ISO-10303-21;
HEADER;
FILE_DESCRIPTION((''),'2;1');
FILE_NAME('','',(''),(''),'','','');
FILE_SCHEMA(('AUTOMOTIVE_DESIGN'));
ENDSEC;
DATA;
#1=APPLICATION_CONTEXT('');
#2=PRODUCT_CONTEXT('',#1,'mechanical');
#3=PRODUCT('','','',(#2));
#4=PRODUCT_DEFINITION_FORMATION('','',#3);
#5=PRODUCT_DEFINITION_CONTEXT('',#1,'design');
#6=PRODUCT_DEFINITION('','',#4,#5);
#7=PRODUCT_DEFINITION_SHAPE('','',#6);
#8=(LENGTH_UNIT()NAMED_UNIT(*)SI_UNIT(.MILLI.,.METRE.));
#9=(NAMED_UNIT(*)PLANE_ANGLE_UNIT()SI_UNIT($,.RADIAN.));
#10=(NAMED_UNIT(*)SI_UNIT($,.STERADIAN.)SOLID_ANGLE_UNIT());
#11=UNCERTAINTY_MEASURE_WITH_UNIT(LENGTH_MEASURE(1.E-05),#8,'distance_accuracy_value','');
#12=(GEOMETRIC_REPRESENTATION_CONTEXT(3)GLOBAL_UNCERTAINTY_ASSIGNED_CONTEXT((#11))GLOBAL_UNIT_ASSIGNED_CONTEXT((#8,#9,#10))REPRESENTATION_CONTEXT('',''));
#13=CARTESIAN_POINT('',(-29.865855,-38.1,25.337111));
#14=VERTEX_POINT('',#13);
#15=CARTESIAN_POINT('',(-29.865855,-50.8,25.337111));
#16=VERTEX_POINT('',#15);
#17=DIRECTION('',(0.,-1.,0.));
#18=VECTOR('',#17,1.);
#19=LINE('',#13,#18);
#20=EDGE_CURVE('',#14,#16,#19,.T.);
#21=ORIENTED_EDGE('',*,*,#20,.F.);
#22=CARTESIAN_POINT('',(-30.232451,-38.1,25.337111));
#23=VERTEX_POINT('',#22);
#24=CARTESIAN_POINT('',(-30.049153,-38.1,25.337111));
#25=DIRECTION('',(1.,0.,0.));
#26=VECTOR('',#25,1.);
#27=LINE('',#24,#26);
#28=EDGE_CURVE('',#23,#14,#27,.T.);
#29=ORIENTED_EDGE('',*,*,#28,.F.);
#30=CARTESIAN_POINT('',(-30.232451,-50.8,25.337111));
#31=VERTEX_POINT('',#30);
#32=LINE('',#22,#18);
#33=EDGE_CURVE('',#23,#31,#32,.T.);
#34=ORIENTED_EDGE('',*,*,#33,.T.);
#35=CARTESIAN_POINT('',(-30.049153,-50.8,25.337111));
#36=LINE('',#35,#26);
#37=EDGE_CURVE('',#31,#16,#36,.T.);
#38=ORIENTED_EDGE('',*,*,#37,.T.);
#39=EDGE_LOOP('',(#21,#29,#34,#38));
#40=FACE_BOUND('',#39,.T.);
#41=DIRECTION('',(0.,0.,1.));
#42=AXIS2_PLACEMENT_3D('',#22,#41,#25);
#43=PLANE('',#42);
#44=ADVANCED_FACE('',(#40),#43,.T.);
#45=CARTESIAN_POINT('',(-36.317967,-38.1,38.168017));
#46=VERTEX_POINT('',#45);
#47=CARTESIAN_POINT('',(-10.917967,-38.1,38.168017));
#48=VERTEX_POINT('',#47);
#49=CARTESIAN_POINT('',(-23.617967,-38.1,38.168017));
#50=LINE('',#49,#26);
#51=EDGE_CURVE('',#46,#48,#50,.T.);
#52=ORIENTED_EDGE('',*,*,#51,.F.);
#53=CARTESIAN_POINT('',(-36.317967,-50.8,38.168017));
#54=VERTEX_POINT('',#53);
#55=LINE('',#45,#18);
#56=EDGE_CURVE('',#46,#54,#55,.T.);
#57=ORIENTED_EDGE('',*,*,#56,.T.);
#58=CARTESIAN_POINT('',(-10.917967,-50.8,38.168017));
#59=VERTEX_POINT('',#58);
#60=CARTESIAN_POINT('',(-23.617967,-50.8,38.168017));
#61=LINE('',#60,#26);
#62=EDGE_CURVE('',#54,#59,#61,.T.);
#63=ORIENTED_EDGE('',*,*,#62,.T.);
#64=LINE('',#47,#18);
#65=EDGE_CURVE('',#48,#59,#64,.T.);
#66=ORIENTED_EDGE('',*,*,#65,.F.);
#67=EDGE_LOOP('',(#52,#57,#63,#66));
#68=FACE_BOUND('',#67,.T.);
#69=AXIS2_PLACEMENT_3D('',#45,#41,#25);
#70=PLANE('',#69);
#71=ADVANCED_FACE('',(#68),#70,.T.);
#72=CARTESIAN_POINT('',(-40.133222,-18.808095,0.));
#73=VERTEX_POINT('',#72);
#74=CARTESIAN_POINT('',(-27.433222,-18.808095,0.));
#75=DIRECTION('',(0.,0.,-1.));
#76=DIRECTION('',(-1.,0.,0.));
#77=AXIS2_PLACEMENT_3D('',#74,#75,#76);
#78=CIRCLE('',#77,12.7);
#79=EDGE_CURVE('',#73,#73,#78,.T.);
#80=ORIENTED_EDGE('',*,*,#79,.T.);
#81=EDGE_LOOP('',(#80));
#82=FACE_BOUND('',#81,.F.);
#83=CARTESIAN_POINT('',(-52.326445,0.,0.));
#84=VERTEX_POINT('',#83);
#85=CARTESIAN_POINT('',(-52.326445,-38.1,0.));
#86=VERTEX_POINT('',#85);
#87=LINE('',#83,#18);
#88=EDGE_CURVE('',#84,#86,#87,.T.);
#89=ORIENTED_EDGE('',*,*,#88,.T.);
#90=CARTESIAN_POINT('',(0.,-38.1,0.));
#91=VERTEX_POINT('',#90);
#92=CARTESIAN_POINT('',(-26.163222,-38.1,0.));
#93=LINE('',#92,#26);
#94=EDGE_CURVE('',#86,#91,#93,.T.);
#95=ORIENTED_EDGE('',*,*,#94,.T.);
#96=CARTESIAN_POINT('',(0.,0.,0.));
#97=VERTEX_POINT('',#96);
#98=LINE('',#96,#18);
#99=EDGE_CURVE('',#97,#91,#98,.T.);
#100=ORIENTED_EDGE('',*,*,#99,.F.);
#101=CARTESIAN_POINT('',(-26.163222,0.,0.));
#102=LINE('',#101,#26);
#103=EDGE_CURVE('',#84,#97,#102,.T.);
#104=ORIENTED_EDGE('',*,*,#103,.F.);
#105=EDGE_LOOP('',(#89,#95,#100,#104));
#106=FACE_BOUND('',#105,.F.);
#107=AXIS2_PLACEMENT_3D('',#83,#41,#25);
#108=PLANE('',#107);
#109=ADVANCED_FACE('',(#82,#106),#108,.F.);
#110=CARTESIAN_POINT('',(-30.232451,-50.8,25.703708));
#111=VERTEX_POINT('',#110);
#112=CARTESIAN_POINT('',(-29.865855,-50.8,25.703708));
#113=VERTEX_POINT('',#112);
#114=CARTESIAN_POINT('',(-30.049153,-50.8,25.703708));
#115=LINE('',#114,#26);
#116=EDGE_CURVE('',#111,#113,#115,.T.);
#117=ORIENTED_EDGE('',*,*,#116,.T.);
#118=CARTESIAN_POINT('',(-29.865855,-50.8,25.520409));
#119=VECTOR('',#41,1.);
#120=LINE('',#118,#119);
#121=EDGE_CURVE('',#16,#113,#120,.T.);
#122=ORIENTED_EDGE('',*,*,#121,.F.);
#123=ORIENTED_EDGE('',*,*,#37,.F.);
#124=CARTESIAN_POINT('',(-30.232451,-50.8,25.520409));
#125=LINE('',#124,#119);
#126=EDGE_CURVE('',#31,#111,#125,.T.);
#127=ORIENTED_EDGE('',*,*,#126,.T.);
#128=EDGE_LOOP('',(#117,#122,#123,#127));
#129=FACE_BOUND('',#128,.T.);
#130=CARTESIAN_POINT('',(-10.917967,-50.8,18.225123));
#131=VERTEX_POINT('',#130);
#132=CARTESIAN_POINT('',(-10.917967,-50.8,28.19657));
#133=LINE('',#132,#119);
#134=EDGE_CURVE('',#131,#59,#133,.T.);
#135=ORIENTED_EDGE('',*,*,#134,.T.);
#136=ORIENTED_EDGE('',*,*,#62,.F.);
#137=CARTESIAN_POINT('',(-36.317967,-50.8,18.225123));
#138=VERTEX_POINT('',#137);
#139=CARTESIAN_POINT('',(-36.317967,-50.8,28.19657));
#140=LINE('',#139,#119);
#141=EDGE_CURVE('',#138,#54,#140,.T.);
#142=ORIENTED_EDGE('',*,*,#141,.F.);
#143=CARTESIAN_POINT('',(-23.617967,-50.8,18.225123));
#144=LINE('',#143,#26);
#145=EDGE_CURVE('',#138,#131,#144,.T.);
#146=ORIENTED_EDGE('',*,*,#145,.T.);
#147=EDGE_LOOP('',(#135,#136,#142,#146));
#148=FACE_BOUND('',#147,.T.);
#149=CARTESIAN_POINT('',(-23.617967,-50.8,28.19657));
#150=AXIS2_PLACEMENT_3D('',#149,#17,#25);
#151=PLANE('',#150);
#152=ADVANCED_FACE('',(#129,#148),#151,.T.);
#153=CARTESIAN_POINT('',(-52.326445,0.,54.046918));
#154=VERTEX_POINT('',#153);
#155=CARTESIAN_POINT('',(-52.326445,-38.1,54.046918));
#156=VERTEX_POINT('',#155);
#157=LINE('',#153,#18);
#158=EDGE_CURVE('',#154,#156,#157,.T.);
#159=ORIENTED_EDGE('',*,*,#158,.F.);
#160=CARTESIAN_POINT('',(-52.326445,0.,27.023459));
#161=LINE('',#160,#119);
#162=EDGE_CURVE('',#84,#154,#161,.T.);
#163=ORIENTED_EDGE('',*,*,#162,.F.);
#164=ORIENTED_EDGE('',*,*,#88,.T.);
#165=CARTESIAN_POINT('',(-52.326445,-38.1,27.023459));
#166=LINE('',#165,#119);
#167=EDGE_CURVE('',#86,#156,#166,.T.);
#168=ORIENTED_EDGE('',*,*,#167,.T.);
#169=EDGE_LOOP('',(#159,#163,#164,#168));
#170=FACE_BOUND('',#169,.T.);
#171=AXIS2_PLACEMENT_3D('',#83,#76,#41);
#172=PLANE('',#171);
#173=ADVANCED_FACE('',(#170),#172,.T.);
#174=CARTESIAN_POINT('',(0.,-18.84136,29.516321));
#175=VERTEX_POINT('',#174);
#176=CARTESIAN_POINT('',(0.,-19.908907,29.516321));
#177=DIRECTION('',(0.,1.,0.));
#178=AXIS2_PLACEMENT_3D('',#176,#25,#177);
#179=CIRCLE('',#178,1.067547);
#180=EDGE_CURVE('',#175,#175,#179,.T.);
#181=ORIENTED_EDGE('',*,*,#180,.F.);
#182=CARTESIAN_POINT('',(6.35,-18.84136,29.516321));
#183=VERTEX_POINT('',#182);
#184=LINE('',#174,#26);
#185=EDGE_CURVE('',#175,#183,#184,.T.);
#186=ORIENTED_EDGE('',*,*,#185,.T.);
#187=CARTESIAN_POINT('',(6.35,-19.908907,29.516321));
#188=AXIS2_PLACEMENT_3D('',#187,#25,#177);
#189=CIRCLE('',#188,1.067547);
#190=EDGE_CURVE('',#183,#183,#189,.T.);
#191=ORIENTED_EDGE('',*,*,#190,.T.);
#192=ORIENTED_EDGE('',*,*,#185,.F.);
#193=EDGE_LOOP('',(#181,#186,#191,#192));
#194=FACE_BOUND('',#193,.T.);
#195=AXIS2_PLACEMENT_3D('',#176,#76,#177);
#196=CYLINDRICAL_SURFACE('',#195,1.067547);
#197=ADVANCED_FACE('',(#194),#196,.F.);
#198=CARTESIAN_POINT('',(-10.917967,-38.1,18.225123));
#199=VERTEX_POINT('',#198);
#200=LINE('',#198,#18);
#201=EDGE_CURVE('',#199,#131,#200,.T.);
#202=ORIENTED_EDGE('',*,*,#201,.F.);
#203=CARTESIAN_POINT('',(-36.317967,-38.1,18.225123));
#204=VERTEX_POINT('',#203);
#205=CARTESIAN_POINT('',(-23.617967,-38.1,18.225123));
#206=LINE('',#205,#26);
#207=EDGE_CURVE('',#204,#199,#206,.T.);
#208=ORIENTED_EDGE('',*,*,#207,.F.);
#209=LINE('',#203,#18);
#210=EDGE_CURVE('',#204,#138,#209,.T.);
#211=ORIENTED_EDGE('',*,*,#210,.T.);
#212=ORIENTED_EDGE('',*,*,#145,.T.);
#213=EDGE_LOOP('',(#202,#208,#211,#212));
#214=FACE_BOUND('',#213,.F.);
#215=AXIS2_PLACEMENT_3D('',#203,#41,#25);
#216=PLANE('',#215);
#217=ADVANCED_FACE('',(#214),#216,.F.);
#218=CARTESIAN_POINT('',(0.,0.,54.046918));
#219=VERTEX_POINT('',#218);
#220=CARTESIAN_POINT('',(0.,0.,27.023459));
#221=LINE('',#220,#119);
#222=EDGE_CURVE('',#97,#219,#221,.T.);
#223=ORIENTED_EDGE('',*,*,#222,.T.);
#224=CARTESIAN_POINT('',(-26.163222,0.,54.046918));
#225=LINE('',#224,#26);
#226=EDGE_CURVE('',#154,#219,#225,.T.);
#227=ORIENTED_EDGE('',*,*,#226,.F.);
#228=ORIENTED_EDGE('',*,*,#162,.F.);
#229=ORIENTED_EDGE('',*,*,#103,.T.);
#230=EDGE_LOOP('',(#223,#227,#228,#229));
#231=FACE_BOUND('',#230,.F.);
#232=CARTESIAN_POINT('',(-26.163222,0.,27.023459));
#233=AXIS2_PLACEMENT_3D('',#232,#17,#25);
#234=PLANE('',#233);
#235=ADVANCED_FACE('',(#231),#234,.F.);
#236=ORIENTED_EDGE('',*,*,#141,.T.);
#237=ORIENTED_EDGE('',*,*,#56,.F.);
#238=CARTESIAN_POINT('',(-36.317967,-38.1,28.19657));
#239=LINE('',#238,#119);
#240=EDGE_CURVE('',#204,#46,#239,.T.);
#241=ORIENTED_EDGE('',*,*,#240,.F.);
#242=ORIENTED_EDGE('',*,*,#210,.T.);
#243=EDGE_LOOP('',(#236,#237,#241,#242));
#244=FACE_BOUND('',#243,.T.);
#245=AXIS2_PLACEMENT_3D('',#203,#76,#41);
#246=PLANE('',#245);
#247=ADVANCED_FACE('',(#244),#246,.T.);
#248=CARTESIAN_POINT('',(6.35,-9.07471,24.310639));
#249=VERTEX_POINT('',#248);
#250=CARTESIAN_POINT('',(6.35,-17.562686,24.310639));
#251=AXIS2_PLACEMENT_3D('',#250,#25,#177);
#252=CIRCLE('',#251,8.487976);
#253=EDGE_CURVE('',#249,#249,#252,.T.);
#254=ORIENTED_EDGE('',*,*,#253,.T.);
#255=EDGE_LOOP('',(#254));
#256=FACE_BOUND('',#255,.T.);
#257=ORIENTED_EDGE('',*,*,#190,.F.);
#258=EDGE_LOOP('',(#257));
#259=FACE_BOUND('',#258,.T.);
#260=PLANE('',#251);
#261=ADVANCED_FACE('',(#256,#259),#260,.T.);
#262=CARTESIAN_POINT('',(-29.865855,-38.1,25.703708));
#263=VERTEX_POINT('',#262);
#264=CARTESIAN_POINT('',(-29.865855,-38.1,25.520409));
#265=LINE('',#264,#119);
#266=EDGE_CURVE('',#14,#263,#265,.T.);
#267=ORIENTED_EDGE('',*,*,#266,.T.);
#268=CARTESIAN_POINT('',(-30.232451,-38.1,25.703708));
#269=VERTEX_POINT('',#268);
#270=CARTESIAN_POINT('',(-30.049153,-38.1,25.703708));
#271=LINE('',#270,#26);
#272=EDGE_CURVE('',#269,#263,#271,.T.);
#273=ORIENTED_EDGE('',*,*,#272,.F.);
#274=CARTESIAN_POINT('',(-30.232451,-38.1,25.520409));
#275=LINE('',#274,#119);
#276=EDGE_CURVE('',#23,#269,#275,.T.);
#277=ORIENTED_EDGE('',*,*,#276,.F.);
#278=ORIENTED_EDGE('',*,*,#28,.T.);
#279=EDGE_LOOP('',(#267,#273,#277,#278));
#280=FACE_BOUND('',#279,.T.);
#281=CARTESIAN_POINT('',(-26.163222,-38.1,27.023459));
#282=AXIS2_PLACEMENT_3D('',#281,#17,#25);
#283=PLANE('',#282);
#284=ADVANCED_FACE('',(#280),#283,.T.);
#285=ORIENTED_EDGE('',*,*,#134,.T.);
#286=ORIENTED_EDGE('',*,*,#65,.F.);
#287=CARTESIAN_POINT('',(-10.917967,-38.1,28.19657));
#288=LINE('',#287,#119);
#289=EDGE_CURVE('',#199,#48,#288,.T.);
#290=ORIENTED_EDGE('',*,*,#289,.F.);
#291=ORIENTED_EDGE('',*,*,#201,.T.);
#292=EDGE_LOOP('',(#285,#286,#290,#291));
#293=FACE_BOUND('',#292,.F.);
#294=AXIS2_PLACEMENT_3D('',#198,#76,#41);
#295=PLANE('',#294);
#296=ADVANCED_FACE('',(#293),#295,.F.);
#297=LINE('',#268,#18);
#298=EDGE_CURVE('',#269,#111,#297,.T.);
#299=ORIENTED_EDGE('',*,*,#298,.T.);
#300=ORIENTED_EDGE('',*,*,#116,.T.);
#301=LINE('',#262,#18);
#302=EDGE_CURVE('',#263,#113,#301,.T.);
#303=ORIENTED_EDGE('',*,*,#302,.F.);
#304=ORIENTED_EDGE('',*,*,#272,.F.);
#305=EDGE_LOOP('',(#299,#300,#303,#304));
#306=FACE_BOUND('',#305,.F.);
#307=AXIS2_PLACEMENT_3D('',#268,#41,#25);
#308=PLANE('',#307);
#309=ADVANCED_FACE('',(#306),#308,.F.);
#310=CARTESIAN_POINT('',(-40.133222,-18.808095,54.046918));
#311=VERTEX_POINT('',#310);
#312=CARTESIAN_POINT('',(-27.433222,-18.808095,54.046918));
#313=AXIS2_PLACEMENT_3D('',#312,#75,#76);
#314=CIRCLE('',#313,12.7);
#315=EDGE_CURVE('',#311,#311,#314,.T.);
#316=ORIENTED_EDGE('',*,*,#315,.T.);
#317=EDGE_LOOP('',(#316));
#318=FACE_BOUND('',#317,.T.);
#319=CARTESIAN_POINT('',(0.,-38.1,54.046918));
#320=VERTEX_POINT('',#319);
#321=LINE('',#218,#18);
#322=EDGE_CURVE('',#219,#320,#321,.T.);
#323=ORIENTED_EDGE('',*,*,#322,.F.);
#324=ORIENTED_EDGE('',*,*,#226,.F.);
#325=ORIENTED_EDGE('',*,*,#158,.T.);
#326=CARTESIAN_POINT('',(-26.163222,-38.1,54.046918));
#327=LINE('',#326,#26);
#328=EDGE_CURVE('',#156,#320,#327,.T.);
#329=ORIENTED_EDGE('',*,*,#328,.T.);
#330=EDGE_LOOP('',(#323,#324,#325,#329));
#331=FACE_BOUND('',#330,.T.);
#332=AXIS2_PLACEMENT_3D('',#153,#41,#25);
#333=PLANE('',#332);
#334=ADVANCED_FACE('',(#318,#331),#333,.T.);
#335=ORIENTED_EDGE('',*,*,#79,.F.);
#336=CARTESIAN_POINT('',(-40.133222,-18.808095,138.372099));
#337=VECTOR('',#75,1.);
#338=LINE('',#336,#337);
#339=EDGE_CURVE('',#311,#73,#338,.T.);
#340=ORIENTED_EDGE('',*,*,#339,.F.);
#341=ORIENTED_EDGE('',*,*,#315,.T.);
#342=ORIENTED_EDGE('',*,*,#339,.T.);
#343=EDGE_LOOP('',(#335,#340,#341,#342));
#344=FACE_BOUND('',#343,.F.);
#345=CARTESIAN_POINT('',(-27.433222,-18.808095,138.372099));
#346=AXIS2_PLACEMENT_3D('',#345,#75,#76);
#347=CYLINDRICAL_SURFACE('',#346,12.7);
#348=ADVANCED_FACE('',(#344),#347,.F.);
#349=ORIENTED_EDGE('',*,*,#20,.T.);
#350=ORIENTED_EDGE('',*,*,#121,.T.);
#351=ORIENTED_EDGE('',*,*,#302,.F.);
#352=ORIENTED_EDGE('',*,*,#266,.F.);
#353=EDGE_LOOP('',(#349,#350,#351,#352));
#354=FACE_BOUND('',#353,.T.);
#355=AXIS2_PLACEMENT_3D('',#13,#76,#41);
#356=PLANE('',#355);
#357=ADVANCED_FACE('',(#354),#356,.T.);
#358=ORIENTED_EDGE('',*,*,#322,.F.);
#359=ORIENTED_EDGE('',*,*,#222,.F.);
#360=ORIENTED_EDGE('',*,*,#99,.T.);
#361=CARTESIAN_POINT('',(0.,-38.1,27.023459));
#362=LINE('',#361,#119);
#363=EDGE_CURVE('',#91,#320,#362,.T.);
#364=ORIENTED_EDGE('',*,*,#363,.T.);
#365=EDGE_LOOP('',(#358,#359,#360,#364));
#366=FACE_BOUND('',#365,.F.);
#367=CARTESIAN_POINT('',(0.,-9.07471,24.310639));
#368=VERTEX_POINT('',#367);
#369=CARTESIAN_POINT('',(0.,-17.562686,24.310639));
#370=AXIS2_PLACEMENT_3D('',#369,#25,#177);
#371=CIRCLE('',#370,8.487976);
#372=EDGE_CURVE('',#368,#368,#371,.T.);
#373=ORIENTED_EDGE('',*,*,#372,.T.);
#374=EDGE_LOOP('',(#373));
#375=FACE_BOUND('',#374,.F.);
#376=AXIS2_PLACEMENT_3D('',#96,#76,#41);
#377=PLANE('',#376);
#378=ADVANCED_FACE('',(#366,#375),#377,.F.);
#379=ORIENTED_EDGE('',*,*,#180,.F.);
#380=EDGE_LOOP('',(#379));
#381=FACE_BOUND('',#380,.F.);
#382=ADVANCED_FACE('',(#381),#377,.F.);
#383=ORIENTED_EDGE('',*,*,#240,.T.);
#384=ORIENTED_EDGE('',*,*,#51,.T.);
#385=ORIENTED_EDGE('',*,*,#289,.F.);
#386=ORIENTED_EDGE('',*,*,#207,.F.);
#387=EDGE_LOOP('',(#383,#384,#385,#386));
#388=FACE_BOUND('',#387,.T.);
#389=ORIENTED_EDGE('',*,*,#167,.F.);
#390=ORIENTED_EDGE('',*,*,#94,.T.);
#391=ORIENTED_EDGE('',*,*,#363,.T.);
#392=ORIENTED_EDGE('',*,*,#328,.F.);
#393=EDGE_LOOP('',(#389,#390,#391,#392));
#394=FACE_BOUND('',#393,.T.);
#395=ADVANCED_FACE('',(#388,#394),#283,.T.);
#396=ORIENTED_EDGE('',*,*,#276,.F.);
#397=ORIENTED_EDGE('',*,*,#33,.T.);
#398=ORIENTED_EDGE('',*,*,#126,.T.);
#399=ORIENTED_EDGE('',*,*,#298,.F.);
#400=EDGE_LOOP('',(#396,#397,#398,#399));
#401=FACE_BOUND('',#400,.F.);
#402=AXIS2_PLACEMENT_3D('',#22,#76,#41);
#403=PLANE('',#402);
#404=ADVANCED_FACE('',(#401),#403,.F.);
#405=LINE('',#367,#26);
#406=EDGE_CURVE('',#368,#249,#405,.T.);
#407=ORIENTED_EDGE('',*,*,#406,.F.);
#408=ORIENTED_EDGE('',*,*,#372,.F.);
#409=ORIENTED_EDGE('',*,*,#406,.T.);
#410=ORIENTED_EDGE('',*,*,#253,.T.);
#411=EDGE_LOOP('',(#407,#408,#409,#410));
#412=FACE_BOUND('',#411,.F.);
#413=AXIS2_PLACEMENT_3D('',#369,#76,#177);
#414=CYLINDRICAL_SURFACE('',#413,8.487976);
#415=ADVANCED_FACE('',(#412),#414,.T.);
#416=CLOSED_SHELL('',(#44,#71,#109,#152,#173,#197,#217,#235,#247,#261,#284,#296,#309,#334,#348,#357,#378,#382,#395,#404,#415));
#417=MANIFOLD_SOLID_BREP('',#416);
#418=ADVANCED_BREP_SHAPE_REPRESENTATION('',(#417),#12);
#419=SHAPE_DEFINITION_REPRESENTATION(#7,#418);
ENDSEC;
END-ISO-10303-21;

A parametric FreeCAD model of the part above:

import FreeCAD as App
import Part
import Sketcher
Q = App.Units.Quantity

doc = App.newDocument("Part")
body = doc.addObject("PartDesign::Body", "Body")

# Sketch on XZ plane
sketch1 = body.newObject("Sketcher::SketchObject", "Sketch")
sketch1.AttachmentSupport = (doc.getObject("XZ_Plane"), [""])
sketch1.MapMode = "FlatFace"
sketch1.addGeometry(Part.LineSegment(App.Vector(-52.326445, 54.046918, 0), App.Vector(-52.326445, 0, 0)), False)
sketch1.addGeometry(Part.LineSegment(App.Vector(-52.326445, 0, 0), App.Vector(0, 0, 0)), False)
sketch1.addGeometry(Part.LineSegment(App.Vector(0, 0, 0), App.Vector(0, 54.046918, 0)), False)
sketch1.addGeometry(Part.LineSegment(App.Vector(0, 54.046918, 0), App.Vector(-52.326445, 54.046918, 0)), False)
sketch1.addConstraint(Sketcher.Constraint("Coincident", 0, 2, 1, 1))
sketch1.addConstraint(Sketcher.Constraint("Coincident", 1, 2, 2, 1))
sketch1.addConstraint(Sketcher.Constraint("Coincident", 2, 2, 3, 1))
sketch1.addConstraint(Sketcher.Constraint("Coincident", 3, 2, 0, 1))
sketch1.addConstraint(Sketcher.Constraint("Vertical", 0))
sketch1.addConstraint(Sketcher.Constraint("Horizontal", 1))
sketch1.addConstraint(Sketcher.Constraint("Vertical", 2))
sketch1.addConstraint(Sketcher.Constraint("Horizontal", 3))
sketch1.addConstraint(Sketcher.Constraint("Coincident", 1, 2, -1, 1))
sketch1.addConstraint(Sketcher.Constraint("DistanceX", 1, 1, 1, 2, 52.326445))
sketch1.addConstraint(Sketcher.Constraint("DistanceY", 0, 2, 0, 1, 54.046918))
pad1 = body.newObject("PartDesign::Pad", "Pad")
pad1.Profile = sketch1
pad1.Length = Q("1.5 in")

# Sketch on XY plane
sketch2 = body.newObject("Sketcher::SketchObject", "Sketch001")
sketch2.AttachmentSupport = (doc.getObject("XY_Plane"), [""])
sketch2.MapMode = "FlatFace"
sketch2.AttachmentOffset = App.Placement(App.Vector(0, 0, 54.046918), App.Rotation())
sketch2.addGeometry(Part.Circle(App.Vector(-27.433222, -18.808095, 0), App.Vector(0, 0, 1), 12.7), False)
sketch2.addConstraint(Sketcher.Constraint("Diameter", 0, Q("1 in")))
sketch2.addConstraint(Sketcher.Constraint("DistanceX", 0, 3, -1, 1, 27.433222))
sketch2.addConstraint(Sketcher.Constraint("DistanceY", 0, 3, -1, 1, 18.808095))
doc.recompute()
hole = body.newObject("PartDesign::Hole", "Hole")
hole.Profile = sketch2
hole.ThreadType = "None"
hole.Diameter = Q("1 in")
hole.DepthType = "ThroughAll"

# Sketch on XZ plane
sketch3 = body.newObject("Sketcher::SketchObject", "Sketch002")
sketch3.AttachmentSupport = (doc.getObject("XZ_Plane"), [""])
sketch3.MapMode = "FlatFace"
sketch3.AttachmentOffset = App.Placement(App.Vector(0, 0, 1.5 * 25.4), App.Rotation())
sketch3.addGeometry(Part.LineSegment(App.Vector(-36.317967, 38.168017, 0), App.Vector(-36.317967, 18.225123, 0)), False)
sketch3.addGeometry(Part.LineSegment(App.Vector(-36.317967, 18.225123, 0), App.Vector(-10.917967, 18.225123, 0)), False)
sketch3.addGeometry(Part.LineSegment(App.Vector(-10.917967, 18.225123, 0), App.Vector(-10.917967, 38.168017, 0)), False)
sketch3.addGeometry(Part.LineSegment(App.Vector(-10.917967, 38.168017, 0), App.Vector(-36.317967, 38.168017, 0)), False)
sketch3.addGeometry(Part.LineSegment(App.Vector(-29.865855, 25.337111, 0), App.Vector(-30.232451, 25.337111, 0)), False)
sketch3.addGeometry(Part.LineSegment(App.Vector(-30.232451, 25.337111, 0), App.Vector(-30.232451, 25.703708, 0)), False)
sketch3.addGeometry(Part.LineSegment(App.Vector(-30.232451, 25.703708, 0), App.Vector(-29.865855, 25.703708, 0)), False)
sketch3.addGeometry(Part.LineSegment(App.Vector(-29.865855, 25.703708, 0), App.Vector(-29.865855, 25.337111, 0)), False)
sketch3.addConstraint(Sketcher.Constraint("Coincident", 0, 2, 1, 1))
sketch3.addConstraint(Sketcher.Constraint("Coincident", 1, 2, 2, 1))
sketch3.addConstraint(Sketcher.Constraint("Coincident", 2, 2, 3, 1))
sketch3.addConstraint(Sketcher.Constraint("Coincident", 3, 2, 0, 1))
sketch3.addConstraint(Sketcher.Constraint("Coincident", 4, 2, 5, 1))
sketch3.addConstraint(Sketcher.Constraint("Coincident", 5, 2, 6, 1))
sketch3.addConstraint(Sketcher.Constraint("Coincident", 6, 2, 7, 1))
sketch3.addConstraint(Sketcher.Constraint("Coincident", 7, 2, 4, 1))
sketch3.addConstraint(Sketcher.Constraint("Vertical", 0))
sketch3.addConstraint(Sketcher.Constraint("Horizontal", 1))
sketch3.addConstraint(Sketcher.Constraint("Vertical", 2))
sketch3.addConstraint(Sketcher.Constraint("Horizontal", 3))
sketch3.addConstraint(Sketcher.Constraint("Horizontal", 4))
sketch3.addConstraint(Sketcher.Constraint("Vertical", 5))
sketch3.addConstraint(Sketcher.Constraint("Horizontal", 6))
sketch3.addConstraint(Sketcher.Constraint("Vertical", 7))
sketch3.addConstraint(Sketcher.Constraint("Equal", 6, 5))
sketch3.addConstraint(Sketcher.Constraint("DistanceX", 1, 1, 1, 2, Q("1 in")))
sketch3.addConstraint(Sketcher.Constraint("DistanceX", 4, 2, 4, 1, 0.366597))
sketch3.addConstraint(Sketcher.Constraint("DistanceY", 0, 2, 0, 1, 19.942893))
sketch3.addConstraint(Sketcher.Constraint("DistanceX", 4, 2, -1, 1, 30.232451))
sketch3.addConstraint(Sketcher.Constraint("DistanceY", -1, 1, 4, 2, 25.337111))
sketch3.addConstraint(Sketcher.Constraint("DistanceY", 5, 2, 3, 2, 12.464309))
sketch3.addConstraint(Sketcher.Constraint("DistanceX", 0, 2, -1, 1, 36.317967))
pad2 = body.newObject("PartDesign::Pad", "Pad001")
pad2.Profile = sketch3
pad2.Length = Q("0.5 in")

# Sketch on YZ plane
sketch4 = body.newObject("Sketcher::SketchObject", "Sketch003")
sketch4.AttachmentSupport = (doc.getObject("YZ_Plane"), [""])
sketch4.MapMode = "FlatFace"
sketch4.addGeometry(Part.Circle(App.Vector(-17.562686, 24.310639, 0), App.Vector(0, 0, 1), 8.487976), False)
sketch4.addGeometry(Part.Circle(App.Vector(-19.908907, 29.516321, 0), App.Vector(0, 0, 1), 1.067547), False)
sketch4.addConstraint(Sketcher.Constraint("Diameter", 0, 16.975952))
sketch4.addConstraint(Sketcher.Constraint("Diameter", 1, 2.135094))
sketch4.addConstraint(Sketcher.Constraint("DistanceY", -1, 1, 0, 3, 24.310639))
sketch4.addConstraint(Sketcher.Constraint("DistanceY", -1, 1, 1, 3, 29.516321))
sketch4.addConstraint(Sketcher.Constraint("DistanceX", 1, 3, 0, 3, 2.346221))
sketch4.addConstraint(Sketcher.Constraint("DistanceX", 0, 3, -1, 1, 17.562686))
pad3 = body.newObject("PartDesign::Pad", "Pad002")
pad3.Profile = sketch4
pad3.Length = Q("0.25 in")

doc.recompute()
